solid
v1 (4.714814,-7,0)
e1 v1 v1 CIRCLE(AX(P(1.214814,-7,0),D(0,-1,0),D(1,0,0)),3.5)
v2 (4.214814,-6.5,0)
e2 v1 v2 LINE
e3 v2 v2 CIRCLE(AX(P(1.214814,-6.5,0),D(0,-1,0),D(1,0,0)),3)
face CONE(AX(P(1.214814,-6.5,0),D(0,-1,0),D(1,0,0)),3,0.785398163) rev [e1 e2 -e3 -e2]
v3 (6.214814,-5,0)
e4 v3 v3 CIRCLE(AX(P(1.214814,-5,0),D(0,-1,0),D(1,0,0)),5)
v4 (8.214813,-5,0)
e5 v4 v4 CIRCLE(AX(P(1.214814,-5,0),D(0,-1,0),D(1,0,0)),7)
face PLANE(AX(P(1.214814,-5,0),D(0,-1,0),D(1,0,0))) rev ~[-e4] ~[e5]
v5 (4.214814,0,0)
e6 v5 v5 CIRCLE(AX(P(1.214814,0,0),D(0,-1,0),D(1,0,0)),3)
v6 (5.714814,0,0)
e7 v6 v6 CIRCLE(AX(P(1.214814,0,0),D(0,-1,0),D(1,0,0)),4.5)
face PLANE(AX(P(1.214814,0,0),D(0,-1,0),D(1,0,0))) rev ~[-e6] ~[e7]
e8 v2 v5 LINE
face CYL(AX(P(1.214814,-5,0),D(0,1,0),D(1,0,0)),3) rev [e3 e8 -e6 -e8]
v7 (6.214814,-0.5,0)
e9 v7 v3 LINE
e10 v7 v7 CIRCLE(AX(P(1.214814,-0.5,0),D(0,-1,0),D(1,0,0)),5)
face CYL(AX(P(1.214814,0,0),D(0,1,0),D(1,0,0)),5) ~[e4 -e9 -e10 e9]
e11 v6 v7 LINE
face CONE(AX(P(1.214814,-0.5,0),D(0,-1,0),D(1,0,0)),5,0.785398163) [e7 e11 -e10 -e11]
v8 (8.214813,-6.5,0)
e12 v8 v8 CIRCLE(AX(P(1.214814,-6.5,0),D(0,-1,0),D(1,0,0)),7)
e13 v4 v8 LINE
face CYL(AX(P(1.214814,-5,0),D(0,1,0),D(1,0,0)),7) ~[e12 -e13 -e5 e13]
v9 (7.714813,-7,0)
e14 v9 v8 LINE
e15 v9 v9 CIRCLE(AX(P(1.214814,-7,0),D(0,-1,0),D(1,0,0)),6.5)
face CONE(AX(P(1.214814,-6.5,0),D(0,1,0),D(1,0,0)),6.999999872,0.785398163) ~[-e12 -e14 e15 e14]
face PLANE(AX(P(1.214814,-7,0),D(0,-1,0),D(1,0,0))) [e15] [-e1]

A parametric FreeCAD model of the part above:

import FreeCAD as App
import Part
import Sketcher

V = App.Vector


def edges_at(feature, points):
    """Names of the edges that pass closest to the given points."""
    edges = feature.Shape.Edges
    near = lambda p: min(range(len(edges)), key=lambda i: edges[i].distToShape(Part.Vertex(*p))[0])
    return sorted({f"Edge{near(p) + 1}" for p in points})

doc = App.newDocument("Part")
body = doc.addObject("PartDesign::Body", "Body")

# Sketch on XZ plane
sketch1 = doc.addObject("Sketcher::SketchObject", "Sketch")
body.addObject(sketch1)
sketch1.AttachmentSupport = (doc.XZ_Plane, [""])
sketch1.MapMode = "FlatFace"
sketch1.addGeometry([
    Part.Circle(V(1.2, 0, 0), V(0, 0, 1), 5),
    Part.Circle(V(1.2, 0, 0), V(0, 0, 1), 3),
], False)
sketch1.addConstraint([
    Sketcher.Constraint("Coincident", 1, 3, 0, 3),
    Sketcher.Constraint("PointOnObject", 0, 3, -1),
    Sketcher.Constraint("Diameter", 0, 10.0),
    Sketcher.Constraint("Diameter", 1, 6.0),
    Sketcher.Constraint("DistanceX", -1, 1, 0, 3, 1.214814),
])
pad1 = doc.addObject("PartDesign::Pad", "Pad")
body.addObject(pad1)
pad1.Profile = sketch1
pad1.Length = 5

# Sketch on XZ plane
sketch2 = doc.addObject("Sketcher::SketchObject", "Sketch001")
body.addObject(sketch2)
sketch2.AttachmentSupport = (doc.XZ_Plane, [""])
sketch2.MapMode = "FlatFace"
sketch2.AttachmentOffset = App.Placement(V(0, 0, 5), App.Rotation())
sketch2.addGeometry([
    Part.Circle(V(1.2, 0, 0), V(0, 0, 1), 7),
    Part.Circle(V(1.2, 0, 0), V(0, 0, 1), 3),
], False)
sketch2.addConstraint([
    Sketcher.Constraint("Coincident", 1, 3, 0, 3),
    Sketcher.Constraint("PointOnObject", 0, 3, -1),
    Sketcher.Constraint("Diameter", 0, 14.0),
    Sketcher.Constraint("Diameter", 1, 6.0),
    Sketcher.Constraint("DistanceX", -1, 1, 0, 3, 1.214814),
])
pad2 = doc.addObject("PartDesign::Pad", "Pad001")
body.addObject(pad2)
pad2.Profile = sketch2
pad2.Length = 2
doc.recompute()

chamfer = doc.addObject("PartDesign::Chamfer", "Chamfer")
body.addObject(chamfer)
chamfer.Base = (pad2, edges_at(pad2, [(-1.785, -7, 0)]))
chamfer.Size = 0.5
doc.recompute()

chamfer2 = doc.addObject("PartDesign::Chamfer", "Chamfer001")
body.addObject(chamfer2)
chamfer2.Base = (chamfer, edges_at(chamfer, [(-5.785, -7, 0)]))
chamfer2.Size = 0.5
doc.recompute()

chamfer3 = doc.addObject("PartDesign::Chamfer", "Chamfer002")
body.addObject(chamfer3)
chamfer3.Base = (chamfer2, edges_at(chamfer2, [(-3.785, 0, 0)]))
chamfer3.Size = 0.5

doc.recompute()
